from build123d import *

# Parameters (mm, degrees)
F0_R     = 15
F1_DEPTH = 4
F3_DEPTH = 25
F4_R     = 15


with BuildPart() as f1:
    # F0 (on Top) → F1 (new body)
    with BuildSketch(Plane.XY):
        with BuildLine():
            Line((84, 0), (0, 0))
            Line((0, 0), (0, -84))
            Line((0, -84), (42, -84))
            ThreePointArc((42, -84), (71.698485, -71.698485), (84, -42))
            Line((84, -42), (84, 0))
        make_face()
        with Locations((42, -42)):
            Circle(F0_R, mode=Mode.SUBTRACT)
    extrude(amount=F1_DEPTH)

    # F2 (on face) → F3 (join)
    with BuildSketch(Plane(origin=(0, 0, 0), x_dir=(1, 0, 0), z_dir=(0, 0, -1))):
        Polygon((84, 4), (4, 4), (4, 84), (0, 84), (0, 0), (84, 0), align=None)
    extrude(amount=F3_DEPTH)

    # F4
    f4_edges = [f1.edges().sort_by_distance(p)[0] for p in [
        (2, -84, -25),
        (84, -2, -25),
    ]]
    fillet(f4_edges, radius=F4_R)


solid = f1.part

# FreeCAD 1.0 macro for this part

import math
import FreeCAD as App
import Part
import Sketcher

V = App.Vector
Q = App.Units.Quantity


def edges_at(feature, points):
    """Names of the edges that pass closest to the given points."""
    edges = feature.Shape.Edges
    near = lambda p: min(range(len(edges)), key=lambda i: edges[i].distToShape(Part.Vertex(*p))[0])
    return sorted({f"Edge{near(p) + 1}" for p in points})


def add_polygon(sketch, points):
    """Adds a closed chain of lines whose ends are joined by coincident constraints."""
    first, n = sketch.GeometryCount, len(points)
    for a, b in zip(points, points[1:] + points[:1]):
        sketch.addGeometry(Part.LineSegment(App.Vector(*a, 0), App.Vector(*b, 0)), False)
    for i in range(n):
        sketch.addConstraint(Sketcher.Constraint("Coincident", first + i, 2, first + (i + 1) % n, 1))

doc = App.newDocument("Part")
body = doc.addObject("PartDesign::Body", "Body")

sketch1 = body.newObject("Sketcher::SketchObject", "Sketch")
sketch1.AttachmentSupport = (doc.getObject("XY_Plane"), [""])
sketch1.MapMode = "FlatFace"
sketch1.addGeometry([
    Part.LineSegment(V(84, 0, 0), V(0, 0, 0)),
    Part.LineSegment(V(0, 0, 0), V(0, -84, 0)),
    Part.LineSegment(V(0, -84, 0), V(42, -84, 0)),
    Part.ArcOfCircle(Part.Circle(V(42.000001, -42.000001, 0), V(0, 0, 1), 41.999999), math.radians(-90.000001), math.radians(0.000001)),
    Part.LineSegment(V(84, -42, 0), V(84, 0, 0)),
    Part.Circle(V(42, -42, 0), V(0, 0, 1), 15),
], False)
sketch1.addConstraint([
    Sketcher.Constraint("Coincident", 0, 2, 1, 1),
    Sketcher.Constraint("Coincident", 1, 2, 2, 1),
    Sketcher.Constraint("Tangent", 2, 2, 3, 1),
    Sketcher.Constraint("Tangent", 3, 2, 4, 1),
    Sketcher.Constraint("Coincident", 4, 2, 0, 1),
    Sketcher.Constraint("Horizontal", 0),
    Sketcher.Constraint("Vertical", 1),
    Sketcher.Constraint("Horizontal", 2),
    Sketcher.Constraint("Vertical", 4),
    Sketcher.Constraint("Coincident", 0, 2, -1, 1),
    Sketcher.Constraint("Coincident", 5, 3, 3, 3),
    Sketcher.Constraint("Equal", 0, 1),
    Sketcher.Constraint("Diameter", 5, Q("30 mm")),
    Sketcher.Constraint("Radius", 3, Q("41.999999 mm")),
    Sketcher.Constraint("DistanceX", 0, 2, 0, 1, Q("84 mm")),
])
pad1 = body.newObject("PartDesign::Pad", "Pad")
pad1.Profile = sketch1
pad1.Length = 4

sketch2 = body.newObject("Sketcher::SketchObject", "Sketch001")
sketch2.AttachmentSupport = (doc.getObject("XY_Plane"), [""])
sketch2.MapMode = "FlatFace"
add_polygon(sketch2, [(84, -4), (4, -4), (4, -84), (0, -84), (0, 0), (84, 0)])
sketch2.addConstraint([
    Sketcher.Constraint("Horizontal", 0),
    Sketcher.Constraint("Vertical", 1),
    Sketcher.Constraint("Horizontal", 2),
    Sketcher.Constraint("Vertical", 3),
    Sketcher.Constraint("Horizontal", 4),
    Sketcher.Constraint("Vertical", 5),
    Sketcher.Constraint("Coincident", 3, 2, -1, 1),
    Sketcher.Constraint("Equal", 0, 1),
    Sketcher.Constraint("Equal", 4, 3),
    Sketcher.Constraint("DistanceX", 0, 2, 0, 1, Q("80 mm")),
    Sketcher.Constraint("DistanceX", 2, 2, 2, 1, Q("4 mm")),
])
pad2 = body.newObject("PartDesign::Pad", "Pad001")
pad2.Profile = sketch2
pad2.Length = 25
pad2.Reversed = True
doc.recompute()

fillet = body.newObject("PartDesign::Fillet", "Fillet")
fillet.Base = (pad2, edges_at(pad2, [(2, -84, -25), (84, -2, -25)]))
fillet.Radius = 15

doc.recompute()
